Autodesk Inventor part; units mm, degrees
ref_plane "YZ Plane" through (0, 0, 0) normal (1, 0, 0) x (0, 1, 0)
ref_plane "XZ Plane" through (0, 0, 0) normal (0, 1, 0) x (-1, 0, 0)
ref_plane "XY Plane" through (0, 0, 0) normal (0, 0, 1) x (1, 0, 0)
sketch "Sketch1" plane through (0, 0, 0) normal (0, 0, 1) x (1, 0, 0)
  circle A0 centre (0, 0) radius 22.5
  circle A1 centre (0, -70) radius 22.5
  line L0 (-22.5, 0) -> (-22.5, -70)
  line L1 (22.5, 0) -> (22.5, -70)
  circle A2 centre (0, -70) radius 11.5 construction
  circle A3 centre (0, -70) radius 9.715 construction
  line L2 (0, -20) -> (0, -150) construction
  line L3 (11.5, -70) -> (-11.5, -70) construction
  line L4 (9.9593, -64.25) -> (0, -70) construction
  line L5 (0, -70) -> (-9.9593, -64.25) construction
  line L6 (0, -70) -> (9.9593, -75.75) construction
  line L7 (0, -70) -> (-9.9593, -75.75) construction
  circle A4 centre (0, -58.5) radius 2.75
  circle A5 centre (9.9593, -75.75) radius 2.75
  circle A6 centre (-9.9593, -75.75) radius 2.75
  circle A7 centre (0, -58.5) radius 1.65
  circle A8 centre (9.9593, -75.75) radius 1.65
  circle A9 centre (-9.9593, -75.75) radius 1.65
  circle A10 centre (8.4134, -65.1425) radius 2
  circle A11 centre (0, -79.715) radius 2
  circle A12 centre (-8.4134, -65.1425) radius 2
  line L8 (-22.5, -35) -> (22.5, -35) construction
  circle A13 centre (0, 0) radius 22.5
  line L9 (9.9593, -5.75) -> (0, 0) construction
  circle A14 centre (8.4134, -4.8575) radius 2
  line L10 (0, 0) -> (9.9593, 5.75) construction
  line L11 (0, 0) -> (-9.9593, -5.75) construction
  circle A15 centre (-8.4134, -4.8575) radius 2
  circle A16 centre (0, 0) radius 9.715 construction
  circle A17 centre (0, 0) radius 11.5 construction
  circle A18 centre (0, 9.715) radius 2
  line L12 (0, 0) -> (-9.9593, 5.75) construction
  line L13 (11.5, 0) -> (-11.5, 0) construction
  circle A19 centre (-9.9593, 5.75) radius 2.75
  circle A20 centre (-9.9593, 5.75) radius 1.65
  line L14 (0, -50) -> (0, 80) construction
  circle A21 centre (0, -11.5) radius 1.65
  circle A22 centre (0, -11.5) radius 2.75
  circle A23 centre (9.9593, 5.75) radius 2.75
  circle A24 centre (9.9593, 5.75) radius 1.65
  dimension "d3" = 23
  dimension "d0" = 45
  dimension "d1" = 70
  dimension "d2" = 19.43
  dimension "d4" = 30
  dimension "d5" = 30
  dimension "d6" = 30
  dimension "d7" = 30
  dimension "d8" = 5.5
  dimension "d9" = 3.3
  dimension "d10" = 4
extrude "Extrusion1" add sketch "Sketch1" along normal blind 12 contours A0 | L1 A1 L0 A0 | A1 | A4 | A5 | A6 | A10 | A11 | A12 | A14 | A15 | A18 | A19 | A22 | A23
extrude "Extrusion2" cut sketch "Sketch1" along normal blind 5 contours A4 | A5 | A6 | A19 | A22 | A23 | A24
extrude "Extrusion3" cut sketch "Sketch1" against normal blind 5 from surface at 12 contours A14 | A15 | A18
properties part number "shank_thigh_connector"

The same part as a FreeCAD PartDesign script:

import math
import FreeCAD as App
import Part
import Sketcher
Q = App.Units.Quantity

doc = App.newDocument("Part")
body = doc.addObject("PartDesign::Body", "Body")

# Sketch on XY plane
sketch1 = doc.addObject("Sketcher::SketchObject", "Sketch")
body.addObject(sketch1)
sketch1.AttachmentSupport = (doc.XY_Plane, [""])
sketch1.MapMode = "FlatFace"
sketch1.addGeometry([
    Part.ArcOfCircle(Part.Circle(App.Vector(0, 0, 0), App.Vector(0, 0, 1), 22.5), math.radians(0), math.radians(180)),  # 0
    Part.LineSegment(App.Vector(-22.5, 0, 0), App.Vector(-22.5, -70, 0)),  # 1
    Part.ArcOfCircle(Part.Circle(App.Vector(0, -70, 0), App.Vector(0, 0, 1), 22.5), math.radians(180), math.radians(360)),  # 2
    Part.LineSegment(App.Vector(22.5, -70, 0), App.Vector(22.5, 0, 0)),  # 3
    Part.Circle(App.Vector(-10, 5.8, 0), App.Vector(0, 0, 1), 1.6),  # 4
    Part.Circle(App.Vector(0, -11.5, 0), App.Vector(0, 0, 1), 1.6),  # 5
    Part.Circle(App.Vector(10, 5.8, 0), App.Vector(0, 0, 1), 1.6),  # 6
    Part.Circle(App.Vector(0, -58.5, 0), App.Vector(0, 0, 1), 1.6),  # 7
    Part.Circle(App.Vector(-10, -75.8, 0), App.Vector(0, 0, 1), 1.6),  # 8
    Part.Circle(App.Vector(10, -75.8, 0), App.Vector(0, 0, 1), 1.6),  # 9
], False)
sketch1.addConstraint([
    Sketcher.Constraint("Tangent", 0, 2, 1, 1),
    Sketcher.Constraint("Tangent", 1, 2, 2, 1),
    Sketcher.Constraint("Tangent", 2, 2, 3, 1),
    Sketcher.Constraint("Tangent", 3, 2, 0, 1),
    Sketcher.Constraint("Vertical", 1),
    Sketcher.Constraint("Vertical", 3),
    Sketcher.Constraint("Coincident", 0, 3, -1, 1),
    Sketcher.Constraint("Equal", 4, 5),
    Sketcher.Constraint("Equal", 5, 6),
    Sketcher.Constraint("Equal", 6, 7),
    Sketcher.Constraint("Equal", 7, 8),
    Sketcher.Constraint("Equal", 8, 9),
    Sketcher.Constraint("Symmetric", 4, 3, 6, 3, -2),
    Sketcher.Constraint("Symmetric", 8, 3, 9, 3, -2),
    Sketcher.Constraint("PointOnObject", 5, 3, -2),
    Sketcher.Constraint("PointOnObject", 7, 3, -2),
    Sketcher.Constraint("Vertical", 4, 3, 8, 3),
    Sketcher.Constraint("Diameter", 4, Q("3.3 mm")),
    Sketcher.Constraint("Radius", 0, Q("22.5 mm")),
    Sketcher.Constraint("DistanceY", 1, 2, 1, 1, Q("70 mm")),
    Sketcher.Constraint("DistanceY", 7, 3, 5, 3, Q("47 mm")),
    Sketcher.Constraint("DistanceY", 5, 3, -1, 1, Q("11.5 mm")),
    Sketcher.Constraint("DistanceY", 8, 3, 4, 3, Q("81.5 mm")),
    Sketcher.Constraint("DistanceY", -1, 1, 4, 3, Q("5.75 mm")),
    Sketcher.Constraint("DistanceX", 4, 3, -1, 1, Q("9.9593 mm")),
])
pad1 = doc.addObject("PartDesign::Pad", "Pad")
body.addObject(pad1)
pad1.Profile = sketch1
pad1.Length = 12

# Sketch on XY plane
sketch2 = doc.addObject("Sketcher::SketchObject", "Sketch001")
body.addObject(sketch2)
sketch2.AttachmentSupport = (doc.XY_Plane, [""])
sketch2.MapMode = "FlatFace"
sketch2.addGeometry([
    Part.Circle(App.Vector(0, -58.5, 0), App.Vector(0, 0, 1), 2.8),  # 0
    Part.Circle(App.Vector(0, -58.5, 0), App.Vector(0, 0, 1), 1.6),  # 1
    Part.Circle(App.Vector(10, -75.8, 0), App.Vector(0, 0, 1), 2.8),  # 2
    Part.Circle(App.Vector(10, -75.8, 0), App.Vector(0, 0, 1), 1.6),  # 3
    Part.Circle(App.Vector(-10, -75.8, 0), App.Vector(0, 0, 1), 2.8),  # 4
    Part.Circle(App.Vector(-10, -75.8, 0), App.Vector(0, 0, 1), 1.6),  # 5
    Part.Circle(App.Vector(-10, 5.8, 0), App.Vector(0, 0, 1), 2.8),  # 6
    Part.Circle(App.Vector(-10, 5.8, 0), App.Vector(0, 0, 1), 1.6),  # 7
    Part.Circle(App.Vector(0, -11.5, 0), App.Vector(0, 0, 1), 2.8),  # 8
    Part.Circle(App.Vector(0, -11.5, 0), App.Vector(0, 0, 1), 1.6),  # 9
    Part.Circle(App.Vector(10, 5.8, 0), App.Vector(0, 0, 1), 2.8),  # 10
], False)
sketch2.addConstraint([
    Sketcher.Constraint("Coincident", 1, 3, 0, 3),
    Sketcher.Constraint("Coincident", 3, 3, 2, 3),
    Sketcher.Constraint("Coincident", 5, 3, 4, 3),
    Sketcher.Constraint("Coincident", 7, 3, 6, 3),
    Sketcher.Constraint("Coincident", 9, 3, 8, 3),
    Sketcher.Constraint("Equal", 0, 2),
    Sketcher.Constraint("Equal", 1, 3),
    Sketcher.Constraint("Equal", 2, 4),
    Sketcher.Constraint("Equal", 3, 5),
    Sketcher.Constraint("Equal", 4, 6),
    Sketcher.Constraint("Equal", 5, 7),
    Sketcher.Constraint("Equal", 6, 8),
    Sketcher.Constraint("Equal", 7, 9),
    Sketcher.Constraint("Equal", 8, 10),
    Sketcher.Constraint("Symmetric", 2, 3, 4, 3, -2),
    Sketcher.Constraint("Symmetric", 6, 3, 10, 3, -2),
    Sketcher.Constraint("PointOnObject", 0, 3, -2),
    Sketcher.Constraint("PointOnObject", 8, 3, -2),
    Sketcher.Constraint("Vertical", 5, 3, 6, 3),
    Sketcher.Constraint("Diameter", 0, Q("5.5 mm")),
    Sketcher.Constraint("Diameter", 1, Q("3.3 mm")),
    Sketcher.Constraint("DistanceY", 0, 3, 8, 3, Q("47 mm")),
    Sketcher.Constraint("DistanceY", 0, 3, -1, 1, Q("58.5 mm")),
    Sketcher.Constraint("DistanceY", 4, 3, 6, 3, Q("81.5 mm")),
    Sketcher.Constraint("DistanceY", 2, 3, -1, 1, Q("75.75 mm")),
    Sketcher.Constraint("DistanceX", -1, 1, 2, 3, Q("9.9593 mm")),
])
pocket1 = doc.addObject("PartDesign::Pocket", "Pocket")
body.addObject(pocket1)
pocket1.Profile = sketch2
pocket1.Length = 5
pocket1.Reversed = True

# Sketch on XY plane
sketch3 = doc.addObject("Sketcher::SketchObject", "Sketch002")
body.addObject(sketch3)
sketch3.AttachmentSupport = (doc.XY_Plane, [""])
sketch3.MapMode = "FlatFace"
sketch3.AttachmentOffset = App.Placement(App.Vector(0, 0, 12), App.Rotation())
sketch3.addGeometry([
    Part.Circle(App.Vector(8.4, -4.9, 0), App.Vector(0, 0, 1), 2),
    Part.Circle(App.Vector(-8.4, -4.9, 0), App.Vector(0, 0, 1), 2),
    Part.Circle(App.Vector(0, 9.7, 0), App.Vector(0, 0, 1), 2),
], False)
sketch3.addConstraint([
    Sketcher.Constraint("Equal", 0, 1),
    Sketcher.Constraint("Equal", 1, 2),
    Sketcher.Constraint("Symmetric", 0, 3, 1, 3, -2),
    Sketcher.Constraint("PointOnObject", 2, 3, -2),
    Sketcher.Constraint("Diameter", 0, Q("4 mm")),
    Sketcher.Constraint("DistanceY", -1, 1, 2, 3, Q("9.715 mm")),
    Sketcher.Constraint("DistanceX", -1, 1, 0, 3, Q("8.4134 mm")),
    Sketcher.Constraint("DistanceY", 0, 3, -1, 1, Q("4.8575 mm")),
])
pocket2 = doc.addObject("PartDesign::Pocket", "Pocket001")
body.addObject(pocket2)
pocket2.Profile = sketch3
pocket2.Length = 5

doc.recompute()
